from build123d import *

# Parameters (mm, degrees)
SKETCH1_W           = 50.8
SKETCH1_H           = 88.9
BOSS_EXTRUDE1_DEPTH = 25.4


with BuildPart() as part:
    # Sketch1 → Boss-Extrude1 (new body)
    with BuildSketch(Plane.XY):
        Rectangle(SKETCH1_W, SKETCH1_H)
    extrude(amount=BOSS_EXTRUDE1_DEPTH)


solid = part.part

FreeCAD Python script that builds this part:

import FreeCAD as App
import Part
import Sketcher
Q = App.Units.Quantity

doc = App.newDocument("Part")
params = doc.addObject("Spreadsheet::Sheet", "Params")
for row, (alias, value) in enumerate([
    ("sketch1_width", "2 in"),
    ("sketch1_height", "3.5 in"),
    ("pad1_length", "1 in"),
], start=1):
    params.set(f"A{row}", alias)
    params.set(f"B{row}", "=" + value)
    params.setAlias(f"B{row}", alias)

body = doc.addObject("PartDesign::Body", "Body")

# Sketch on XY plane
sketch1 = doc.addObject("Sketcher::SketchObject", "Sketch")
body.addObject(sketch1)
sketch1.AttachmentSupport = (doc.XY_Plane, [""])
sketch1.MapMode = "FlatFace"
sketch1.addGeometry([
    Part.LineSegment(App.Vector(-25.4, 44.45, 0), App.Vector(-25.4, -44.45, 0)),
    Part.LineSegment(App.Vector(-25.4, -44.45, 0), App.Vector(25.4, -44.45, 0)),
    Part.LineSegment(App.Vector(25.4, -44.45, 0), App.Vector(25.4, 44.45, 0)),
    Part.LineSegment(App.Vector(25.4, 44.45, 0), App.Vector(-25.4, 44.45, 0)),
], False)
sketch1.addConstraint([
    Sketcher.Constraint("Coincident", 0, 2, 1, 1),
    Sketcher.Constraint("Coincident", 1, 2, 2, 1),
    Sketcher.Constraint("Coincident", 2, 2, 3, 1),
    Sketcher.Constraint("Coincident", 3, 2, 0, 1),
    Sketcher.Constraint("Vertical", 0),
    Sketcher.Constraint("Horizontal", 1),
    Sketcher.Constraint("Vertical", 2),
    Sketcher.Constraint("Horizontal", 3),
    Sketcher.Constraint("Symmetric", 0, 2, 2, 2, -1, 1),
    Sketcher.Constraint("DistanceX", 1, 1, 1, 2, Q("2 in")),
    Sketcher.Constraint("DistanceY", 0, 2, 0, 1, Q("3.5 in")),
])
sketch1.setExpression("Constraints[9]", "Params.sketch1_width")
sketch1.setExpression("Constraints[10]", "Params.sketch1_height")
pad1 = doc.addObject("PartDesign::Pad", "Pad")
body.addObject(pad1)
pad1.Profile = sketch1
pad1.setExpression("Length", "Params.pad1_length")

doc.recompute()
